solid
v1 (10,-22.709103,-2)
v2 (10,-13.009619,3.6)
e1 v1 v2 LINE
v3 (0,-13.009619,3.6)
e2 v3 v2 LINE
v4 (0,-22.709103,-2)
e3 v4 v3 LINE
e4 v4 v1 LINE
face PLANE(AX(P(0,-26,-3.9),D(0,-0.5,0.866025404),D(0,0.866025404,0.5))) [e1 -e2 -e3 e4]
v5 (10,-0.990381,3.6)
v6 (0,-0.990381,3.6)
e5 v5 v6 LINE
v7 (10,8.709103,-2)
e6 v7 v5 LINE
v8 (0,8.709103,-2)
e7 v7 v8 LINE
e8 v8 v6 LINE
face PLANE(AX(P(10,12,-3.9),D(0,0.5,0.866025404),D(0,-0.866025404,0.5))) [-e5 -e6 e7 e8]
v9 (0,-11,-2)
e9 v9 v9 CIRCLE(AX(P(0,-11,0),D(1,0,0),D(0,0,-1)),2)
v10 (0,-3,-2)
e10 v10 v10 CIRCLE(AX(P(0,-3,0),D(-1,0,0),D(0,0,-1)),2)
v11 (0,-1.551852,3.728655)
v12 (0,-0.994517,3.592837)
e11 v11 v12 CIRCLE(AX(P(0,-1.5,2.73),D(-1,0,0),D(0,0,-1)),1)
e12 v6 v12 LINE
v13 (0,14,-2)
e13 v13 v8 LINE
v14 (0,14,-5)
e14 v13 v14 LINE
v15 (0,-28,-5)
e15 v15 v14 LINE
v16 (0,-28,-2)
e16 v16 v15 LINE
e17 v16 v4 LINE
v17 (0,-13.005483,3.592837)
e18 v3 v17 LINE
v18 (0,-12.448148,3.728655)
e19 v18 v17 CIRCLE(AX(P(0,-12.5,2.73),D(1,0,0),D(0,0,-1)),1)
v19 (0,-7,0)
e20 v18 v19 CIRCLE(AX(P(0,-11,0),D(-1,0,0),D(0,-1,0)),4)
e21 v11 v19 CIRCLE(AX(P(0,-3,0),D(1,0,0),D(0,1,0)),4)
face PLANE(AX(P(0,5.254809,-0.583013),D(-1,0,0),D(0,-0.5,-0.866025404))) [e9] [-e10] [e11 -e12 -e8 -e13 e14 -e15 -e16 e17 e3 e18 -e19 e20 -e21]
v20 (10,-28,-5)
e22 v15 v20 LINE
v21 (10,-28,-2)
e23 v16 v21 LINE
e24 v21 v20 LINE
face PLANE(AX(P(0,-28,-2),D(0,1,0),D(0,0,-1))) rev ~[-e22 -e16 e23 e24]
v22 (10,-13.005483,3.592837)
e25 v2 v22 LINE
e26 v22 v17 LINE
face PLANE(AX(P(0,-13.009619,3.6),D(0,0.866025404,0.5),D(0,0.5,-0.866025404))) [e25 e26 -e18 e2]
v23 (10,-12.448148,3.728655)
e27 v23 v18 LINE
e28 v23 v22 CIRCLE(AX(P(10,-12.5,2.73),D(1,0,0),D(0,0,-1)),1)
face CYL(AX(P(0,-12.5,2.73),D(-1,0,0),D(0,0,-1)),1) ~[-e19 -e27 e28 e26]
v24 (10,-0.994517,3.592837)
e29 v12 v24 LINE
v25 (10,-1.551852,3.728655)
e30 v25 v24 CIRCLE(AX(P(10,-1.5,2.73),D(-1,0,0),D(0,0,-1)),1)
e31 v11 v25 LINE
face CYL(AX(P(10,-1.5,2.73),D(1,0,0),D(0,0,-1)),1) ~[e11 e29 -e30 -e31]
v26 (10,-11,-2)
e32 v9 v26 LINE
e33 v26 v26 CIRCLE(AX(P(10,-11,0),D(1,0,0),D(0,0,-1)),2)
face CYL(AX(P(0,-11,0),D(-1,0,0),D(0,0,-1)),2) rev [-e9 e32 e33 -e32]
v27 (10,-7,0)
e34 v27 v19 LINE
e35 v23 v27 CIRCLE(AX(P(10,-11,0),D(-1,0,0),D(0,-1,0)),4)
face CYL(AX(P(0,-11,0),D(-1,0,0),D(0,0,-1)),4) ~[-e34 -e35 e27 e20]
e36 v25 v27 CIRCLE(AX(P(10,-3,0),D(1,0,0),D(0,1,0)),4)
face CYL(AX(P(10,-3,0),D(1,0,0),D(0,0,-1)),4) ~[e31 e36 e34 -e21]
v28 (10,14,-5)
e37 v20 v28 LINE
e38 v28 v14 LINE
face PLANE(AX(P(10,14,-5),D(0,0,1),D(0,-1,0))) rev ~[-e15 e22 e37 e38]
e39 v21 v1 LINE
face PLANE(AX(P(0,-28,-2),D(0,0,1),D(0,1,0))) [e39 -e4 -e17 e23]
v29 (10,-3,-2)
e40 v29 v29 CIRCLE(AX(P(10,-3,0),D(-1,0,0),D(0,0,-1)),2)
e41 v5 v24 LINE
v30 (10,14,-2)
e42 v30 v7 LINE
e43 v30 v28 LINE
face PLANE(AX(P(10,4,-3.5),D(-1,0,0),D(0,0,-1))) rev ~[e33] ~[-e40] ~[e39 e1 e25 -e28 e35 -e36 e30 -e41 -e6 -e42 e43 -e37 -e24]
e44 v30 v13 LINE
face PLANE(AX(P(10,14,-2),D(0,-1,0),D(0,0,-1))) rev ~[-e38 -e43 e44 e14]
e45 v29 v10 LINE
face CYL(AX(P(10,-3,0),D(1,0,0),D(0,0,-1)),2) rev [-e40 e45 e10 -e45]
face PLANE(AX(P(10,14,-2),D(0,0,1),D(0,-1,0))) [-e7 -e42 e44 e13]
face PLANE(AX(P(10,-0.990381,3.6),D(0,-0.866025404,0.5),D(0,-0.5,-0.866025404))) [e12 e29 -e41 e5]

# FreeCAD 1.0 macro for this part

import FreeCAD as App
import Part
import Sketcher
Q = App.Units.Quantity

doc = App.newDocument("Part")
params = doc.addObject("Spreadsheet::Sheet", "Params")
for row, (alias, value) in enumerate([
    ("sketch1_diameter", "4 mm"),
    ("pad1_length", "10 mm"),
    ("sketch2_diameter", "4 mm"),
    ("pad2_length", "10 mm"),
    ("sketch3_diameter", "2 mm"),
    ("pad3_length", "10 mm"),
    ("sketch4_width", "3 mm"),
    ("sketch4_height", "20 mm"),
    ("pad4_length", "10 mm"),
    ("sketch5_width", "1 mm"),
    ("sketch5_height", "15 mm"),
    ("pad5_length", "10 mm"),
    ("sketch6_height", "8 mm"),
    ("sketch6_width", "3.3 mm"),
    ("pad6_length", "10 mm"),
    ("sketch7_diameter", "4 mm"),
    ("pad7_length", "10 mm"),
    ("sketch8_diameter", "8 mm"),
    ("pad8_length", "10 mm"),
    ("sketch9_diameter", "4 mm"),
    ("pad9_length", "10 mm"),
    ("sketch10_diameter", "2 mm"),
    ("pad10_length", "10 mm"),
    ("sketch11_width", "3 mm"),
    ("sketch11_height", "22 mm"),
    ("pad11_length", "10 mm"),
    ("sketch12_width", "1 mm"),
    ("sketch12_height", "15 mm"),
    ("pad12_length", "10 mm"),
    ("sketch13_height", "8 mm"),
    ("sketch13_width", "3.3 mm"),
    ("pad13_length", "10 mm"),
    ("sketch14_diameter", "4 mm"),
    ("pad14_length", "10 mm"),
    ("sketch15_diameter", "8 mm"),
    ("pad15_length", "10 mm"),
], start=1):
    params.set(f"A{row}", alias)
    params.set(f"B{row}", "=" + value)
    params.setAlias(f"B{row}", alias)

body = doc.addObject("PartDesign::Body", "Body")

sketch1 = doc.addObject("Sketcher::SketchObject", "Sketch")
body.addObject(sketch1)
sketch1.AttachmentSupport = (doc.XY_Plane, [""])
sketch1.MapMode = "FlatFace"
sketch1.addGeometry(Part.Circle(App.Vector(2, -7, 0), App.Vector(0, 0, 1), 2), False)
sketch1.addConstraint(Sketcher.Constraint("Diameter", 0, Q("4 mm")))
sketch1.addConstraint(Sketcher.Constraint("DistanceX", -1, 1, 0, 3, Q("2 mm")))
sketch1.addConstraint(Sketcher.Constraint("DistanceY", 0, 3, -1, 1, Q("7 mm")))
sketch1.setExpression("Constraints[0]", "Params.sketch1_diameter")
pad1 = doc.addObject("PartDesign::Pad", "Pad")
body.addObject(pad1)
pad1.Profile = sketch1
pad1.setExpression("Length", "Params.pad1_length")
body2 = doc.addObject("PartDesign::Body", "Body001")

sketch2 = doc.addObject("Sketcher::SketchObject", "Sketch001")
body2.addObject(sketch2)
sketch2.AttachmentSupport = (doc.getObject("XY_Plane001"), [""])
sketch2.MapMode = "FlatFace"
sketch2.addGeometry(Part.Circle(App.Vector(2, -15, 0), App.Vector(0, 0, 1), 2), False)
sketch2.addConstraint(Sketcher.Constraint("Diameter", 0, Q("4 mm")))
sketch2.addConstraint(Sketcher.Constraint("DistanceX", -1, 1, 0, 3, Q("2 mm")))
sketch2.addConstraint(Sketcher.Constraint("DistanceY", 0, 3, -1, 1, Q("15 mm")))
sketch2.setExpression("Constraints[0]", "Params.sketch2_diameter")
pad2 = doc.addObject("PartDesign::Pad", "Pad001")
body2.addObject(pad2)
pad2.Profile = sketch2
pad2.setExpression("Length", "Params.pad2_length")
body3 = doc.addObject("PartDesign::Body", "Body002")

sketch3 = doc.addObject("Sketcher::SketchObject", "Sketch002")
body3.addObject(sketch3)
sketch3.AttachmentSupport = (doc.getObject("XY_Plane002"), [""])
sketch3.MapMode = "FlatFace"
sketch3.addGeometry(Part.Circle(App.Vector(-2.7, -12.5, 0), App.Vector(0, 0, 1), 1), False)
sketch3.addConstraint(Sketcher.Constraint("Diameter", 0, Q("2 mm")))
sketch3.addConstraint(Sketcher.Constraint("DistanceY", 0, 3, -1, 1, Q("12.5 mm")))
sketch3.addConstraint(Sketcher.Constraint("DistanceX", 0, 3, -1, 1, Q("2.73 mm")))
sketch3.setExpression("Constraints[0]", "Params.sketch3_diameter")
pad3 = doc.addObject("PartDesign::Pad", "Pad002")
body3.addObject(pad3)
pad3.Profile = sketch3
pad3.setExpression("Length", "Params.pad3_length")
body4 = doc.addObject("PartDesign::Body", "Body003")

sketch4 = doc.addObject("Sketcher::SketchObject", "Sketch003")
body4.addObject(sketch4)
sketch4.AttachmentSupport = (doc.getObject("XY_Plane003"), [""])
sketch4.MapMode = "FlatFace"
sketch4.addGeometry(Part.LineSegment(App.Vector(2, -8, 0), App.Vector(2, -28, 0)), False)
sketch4.addGeometry(Part.LineSegment(App.Vector(2, -28, 0), App.Vector(5, -28, 0)), False)
sketch4.addGeometry(Part.LineSegment(App.Vector(5, -28, 0), App.Vector(5, -8, 0)), False)
sketch4.addGeometry(Part.LineSegment(App.Vector(5, -8, 0), App.Vector(2, -8, 0)), False)
sketch4.addConstraint(Sketcher.Constraint("Coincident", 0, 2, 1, 1))
sketch4.addConstraint(Sketcher.Constraint("Coincident", 1, 2, 2, 1))
sketch4.addConstraint(Sketcher.Constraint("Coincident", 2, 2, 3, 1))
sketch4.addConstraint(Sketcher.Constraint("Coincident", 3, 2, 0, 1))
sketch4.addConstraint(Sketcher.Constraint("Vertical", 0))
sketch4.addConstraint(Sketcher.Constraint("Horizontal", 1))
sketch4.addConstraint(Sketcher.Constraint("Vertical", 2))
sketch4.addConstraint(Sketcher.Constraint("Horizontal", 3))
sketch4.addConstraint(Sketcher.Constraint("DistanceX", 1, 1, 1, 2, Q("3 mm")))
sketch4.addConstraint(Sketcher.Constraint("DistanceY", 0, 2, 0, 1, Q("20 mm")))
sketch4.addConstraint(Sketcher.Constraint("DistanceX", -1, 1, 0, 2, Q("2 mm")))
sketch4.addConstraint(Sketcher.Constraint("DistanceY", 0, 2, -1, 1, Q("28 mm")))
sketch4.setExpression("Constraints[8]", "Params.sketch4_width")
sketch4.setExpression("Constraints[9]", "Params.sketch4_height")
pad4 = doc.addObject("PartDesign::Pad", "Pad003")
body4.addObject(pad4)
pad4.Profile = sketch4
pad4.setExpression("Length", "Params.pad4_length")
body5 = doc.addObject("PartDesign::Body", "Body004")

sketch5 = doc.addObject("Sketcher::SketchObject", "Sketch004")
body5.addObject(sketch5)
sketch5.AttachmentSupport = (doc.getObject("XY_Plane004"), [""])
sketch5.MapMode = "FlatFace"
sketch5.addGeometry(Part.LineSegment(App.Vector(0, 15, 0), App.Vector(0, 0, 0)), False)
sketch5.addGeometry(Part.LineSegment(App.Vector(0, 0, 0), App.Vector(1, 0, 0)), False)
sketch5.addGeometry(Part.LineSegment(App.Vector(1, 0, 0), App.Vector(1, 15, 0)), False)
sketch5.addGeometry(Part.LineSegment(App.Vector(1, 15, 0), App.Vector(0, 15, 0)), False)
sketch5.addConstraint(Sketcher.Constraint("Coincident", 0, 2, 1, 1))
sketch5.addConstraint(Sketcher.Constraint("Coincident", 1, 2, 2, 1))
sketch5.addConstraint(Sketcher.Constraint("Coincident", 2, 2, 3, 1))
sketch5.addConstraint(Sketcher.Constraint("Coincident", 3, 2, 0, 1))
sketch5.addConstraint(Sketcher.Constraint("Vertical", 0))
sketch5.addConstraint(Sketcher.Constraint("Horizontal", 1))
sketch5.addConstraint(Sketcher.Constraint("Vertical", 2))
sketch5.addConstraint(Sketcher.Constraint("Horizontal", 3))
sketch5.addConstraint(Sketcher.Constraint("Coincident", 0, 2, -1, 1))
sketch5.addConstraint(Sketcher.Constraint("DistanceX", 1, 1, 1, 2, Q("1 mm")))
sketch5.addConstraint(Sketcher.Constraint("DistanceY", 0, 2, 0, 1, Q("15 mm")))
sketch5.setExpression("Constraints[9]", "Params.sketch5_width")
sketch5.setExpression("Constraints[10]", "Params.sketch5_height")
pad5 = doc.addObject("PartDesign::Pad", "Pad004")
body5.addObject(pad5)
pad5.Profile = sketch5
pad5.setExpression("Length", "Params.pad5_length")
body6 = doc.addObject("PartDesign::Body", "Body005")
doc.recompute()

body5.Placement = App.Placement(App.Vector(3.9, -26, 0), App.Rotation(App.Vector(0, 0, 1), 30))
boolean = doc.addObject("PartDesign::Boolean", "Boolean")
body6.addObject(boolean)
boolean.Type = "Fuse"
boolean.addObjects([body5])
body7 = doc.addObject("PartDesign::Body", "Body006")

sketch6 = doc.addObject("Sketcher::SketchObject", "Sketch005")
body7.addObject(sketch6)
sketch6.AttachmentSupport = (doc.getObject("XY_Plane006"), [""])
sketch6.MapMode = "FlatFace"
sketch6.addGeometry(Part.LineSegment(App.Vector(0, 8, 0), App.Vector(0, 0, 0)), False)
sketch6.addGeometry(Part.LineSegment(App.Vector(0, 0, 0), App.Vector(3.3, 0, 0)), False)
sketch6.addGeometry(Part.LineSegment(App.Vector(3.3, 0, 0), App.Vector(3.3, 8, 0)), False)
sketch6.addGeometry(Part.LineSegment(App.Vector(3.3, 8, 0), App.Vector(0, 8, 0)), False)
sketch6.addConstraint(Sketcher.Constraint("Coincident", 0, 2, 1, 1))
sketch6.addConstraint(Sketcher.Constraint("Coincident", 1, 2, 2, 1))
sketch6.addConstraint(Sketcher.Constraint("Coincident", 2, 2, 3, 1))
sketch6.addConstraint(Sketcher.Constraint("Coincident", 3, 2, 0, 1))
sketch6.addConstraint(Sketcher.Constraint("Vertical", 0))
sketch6.addConstraint(Sketcher.Constraint("Horizontal", 1))
sketch6.addConstraint(Sketcher.Constraint("Vertical", 2))
sketch6.addConstraint(Sketcher.Constraint("Horizontal", 3))
sketch6.addConstraint(Sketcher.Constraint("Coincident", 0, 2, -1, 1))
sketch6.addConstraint(Sketcher.Constraint("DistanceY", 0, 2, 0, 1, Q("8 mm")))
sketch6.addConstraint(Sketcher.Constraint("DistanceX", 1, 1, 1, 2, Q("3.3 mm")))
sketch6.setExpression("Constraints[9]", "Params.sketch6_height")
sketch6.setExpression("Constraints[10]", "Params.sketch6_width")
pad6 = doc.addObject("PartDesign::Pad", "Pad005")
body7.addObject(pad6)
pad6.Profile = sketch6
pad6.setExpression("Length", "Params.pad6_length")
body8 = doc.addObject("PartDesign::Body", "Body007")
doc.recompute()

body7.Placement = App.Placement(App.Vector(2, -21.5, 0), App.Rotation(App.Vector(0, 0, 1), 30))
boolean2 = doc.addObject("PartDesign::Boolean", "Boolean001")
body8.addObject(boolean2)
boolean2.Type = "Fuse"
boolean2.addObjects([body7])
body9 = doc.addObject("PartDesign::Body", "Body008")

sketch7 = doc.addObject("Sketcher::SketchObject", "Sketch006")
body9.addObject(sketch7)
sketch7.AttachmentSupport = (doc.getObject("XY_Plane008"), [""])
sketch7.MapMode = "FlatFace"
sketch7.addGeometry(Part.Circle(App.Vector(0, 0, 0), App.Vector(0, 0, 1), 2), False)
sketch7.addConstraint(Sketcher.Constraint("Coincident", 0, 3, -1, 1))
sketch7.addConstraint(Sketcher.Constraint("Diameter", 0, Q("4 mm")))
sketch7.setExpression("Constraints[1]", "Params.sketch7_diameter")
pad7 = doc.addObject("PartDesign::Pad", "Pad006")
body9.addObject(pad7)
pad7.Profile = sketch7
pad7.setExpression("Length", "Params.pad7_length")
body10 = doc.addObject("PartDesign::Body", "Body009")

sketch8 = doc.addObject("Sketcher::SketchObject", "Sketch007")
body10.addObject(sketch8)
sketch8.AttachmentSupport = (doc.getObject("XY_Plane009"), [""])
sketch8.MapMode = "FlatFace"
sketch8.addGeometry(Part.Circle(App.Vector(0, 0, 0), App.Vector(0, 0, 1), 4), False)
sketch8.addConstraint(Sketcher.Constraint("Coincident", 0, 3, -1, 1))
sketch8.addConstraint(Sketcher.Constraint("Diameter", 0, Q("8 mm")))
sketch8.setExpression("Constraints[1]", "Params.sketch8_diameter")
pad8 = doc.addObject("PartDesign::Pad", "Pad007")
body10.addObject(pad8)
pad8.Profile = sketch8
pad8.setExpression("Length", "Params.pad8_length")
doc.recompute()

boolean3 = doc.addObject("PartDesign::Boolean", "Boolean002")
body10.addObject(boolean3)
boolean3.Type = "Cut"
boolean3.addObjects([body9])
body11 = doc.addObject("PartDesign::Body", "Body010")
doc.recompute()

body10.Placement = App.Placement(App.Vector(0, -11, 0), App.Rotation(App.Vector(0, 0, 1), 0))
boolean4 = doc.addObject("PartDesign::Boolean", "Boolean003")
body11.addObject(boolean4)
boolean4.Type = "Fuse"
boolean4.addObjects([body10])
doc.recompute()

boolean5 = doc.addObject("PartDesign::Boolean", "Boolean004")
body11.addObject(boolean5)
boolean5.Type = "Fuse"
boolean5.addObjects([body2])
doc.recompute()

boolean6 = doc.addObject("PartDesign::Boolean", "Boolean005")
body11.addObject(boolean6)
boolean6.Type = "Fuse"
boolean6.addObjects([body3])
doc.recompute()

boolean7 = doc.addObject("PartDesign::Boolean", "Boolean006")
body11.addObject(boolean7)
boolean7.Type = "Fuse"
boolean7.addObjects([body4])
doc.recompute()

boolean8 = doc.addObject("PartDesign::Boolean", "Boolean007")
body11.addObject(boolean8)
boolean8.Type = "Fuse"
boolean8.addObjects([body6])
doc.recompute()

boolean9 = doc.addObject("PartDesign::Boolean", "Boolean008")
body11.addObject(boolean9)
boolean9.Type = "Fuse"
boolean9.addObjects([body8])
body12 = doc.addObject("PartDesign::Body", "Body011")
doc.recompute()

body11.Placement = App.Placement(App.Vector(0, -14, 10), App.Rotation(App.Vector(1, 0, 0), 180))
boolean10 = doc.addObject("PartDesign::Boolean", "Boolean009")
body12.addObject(boolean10)
boolean10.Type = "Fuse"
boolean10.addObjects([body11])
body13 = doc.addObject("PartDesign::Body", "Body012")

sketch9 = doc.addObject("Sketcher::SketchObject", "Sketch008")
body13.addObject(sketch9)
sketch9.AttachmentSupport = (doc.getObject("XY_Plane012"), [""])
sketch9.MapMode = "FlatFace"
sketch9.addGeometry(Part.Circle(App.Vector(2, -15, 0), App.Vector(0, 0, 1), 2), False)
sketch9.addConstraint(Sketcher.Constraint("Diameter", 0, Q("4 mm")))
sketch9.addConstraint(Sketcher.Constraint("DistanceX", -1, 1, 0, 3, Q("2 mm")))
sketch9.addConstraint(Sketcher.Constraint("DistanceY", 0, 3, -1, 1, Q("15 mm")))
sketch9.setExpression("Constraints[0]", "Params.sketch9_diameter")
pad9 = doc.addObject("PartDesign::Pad", "Pad008")
body13.addObject(pad9)
pad9.Profile = sketch9
pad9.setExpression("Length", "Params.pad9_length")
body14 = doc.addObject("PartDesign::Body", "Body013")

sketch10 = doc.addObject("Sketcher::SketchObject", "Sketch009")
body14.addObject(sketch10)
sketch10.AttachmentSupport = (doc.getObject("XY_Plane013"), [""])
sketch10.MapMode = "FlatFace"
sketch10.addGeometry(Part.Circle(App.Vector(-2.7, -12.5, 0), App.Vector(0, 0, 1), 1), False)
sketch10.addConstraint(Sketcher.Constraint("Diameter", 0, Q("2 mm")))
sketch10.addConstraint(Sketcher.Constraint("DistanceY", 0, 3, -1, 1, Q("12.5 mm")))
sketch10.addConstraint(Sketcher.Constraint("DistanceX", 0, 3, -1, 1, Q("2.73 mm")))
sketch10.setExpression("Constraints[0]", "Params.sketch10_diameter")
pad10 = doc.addObject("PartDesign::Pad", "Pad009")
body14.addObject(pad10)
pad10.Profile = sketch10
pad10.setExpression("Length", "Params.pad10_length")
body15 = doc.addObject("PartDesign::Body", "Body014")

sketch11 = doc.addObject("Sketcher::SketchObject", "Sketch010")
body15.addObject(sketch11)
sketch11.AttachmentSupport = (doc.getObject("XY_Plane014"), [""])
sketch11.MapMode = "FlatFace"
sketch11.addGeometry(Part.LineSegment(App.Vector(2, -6, 0), App.Vector(2, -28, 0)), False)
sketch11.addGeometry(Part.LineSegment(App.Vector(2, -28, 0), App.Vector(5, -28, 0)), False)
sketch11.addGeometry(Part.LineSegment(App.Vector(5, -28, 0), App.Vector(5, -6, 0)), False)
sketch11.addGeometry(Part.LineSegment(App.Vector(5, -6, 0), App.Vector(2, -6, 0)), False)
sketch11.addConstraint(Sketcher.Constraint("Coincident", 0, 2, 1, 1))
sketch11.addConstraint(Sketcher.Constraint("Coincident", 1, 2, 2, 1))
sketch11.addConstraint(Sketcher.Constraint("Coincident", 2, 2, 3, 1))
sketch11.addConstraint(Sketcher.Constraint("Coincident", 3, 2, 0, 1))
sketch11.addConstraint(Sketcher.Constraint("Vertical", 0))
sketch11.addConstraint(Sketcher.Constraint("Horizontal", 1))
sketch11.addConstraint(Sketcher.Constraint("Vertical", 2))
sketch11.addConstraint(Sketcher.Constraint("Horizontal", 3))
sketch11.addConstraint(Sketcher.Constraint("DistanceX", 1, 1, 1, 2, Q("3 mm")))
sketch11.addConstraint(Sketcher.Constraint("DistanceY", 0, 2, 0, 1, Q("22 mm")))
sketch11.addConstraint(Sketcher.Constraint("DistanceX", -1, 1, 0, 2, Q("2 mm")))
sketch11.addConstraint(Sketcher.Constraint("DistanceY", 0, 2, -1, 1, Q("28 mm")))
sketch11.setExpression("Constraints[8]", "Params.sketch11_width")
sketch11.setExpression("Constraints[9]", "Params.sketch11_height")
pad11 = doc.addObject("PartDesign::Pad", "Pad010")
body15.addObject(pad11)
pad11.Profile = sketch11
pad11.setExpression("Length", "Params.pad11_length")
body16 = doc.addObject("PartDesign::Body", "Body015")

sketch12 = doc.addObject("Sketcher::SketchObject", "Sketch011")
body16.addObject(sketch12)
sketch12.AttachmentSupport = (doc.getObject("XY_Plane015"), [""])
sketch12.MapMode = "FlatFace"
sketch12.addGeometry(Part.LineSegment(App.Vector(0, 15, 0), App.Vector(0, 0, 0)), False)
sketch12.addGeometry(Part.LineSegment(App.Vector(0, 0, 0), App.Vector(1, 0, 0)), False)
sketch12.addGeometry(Part.LineSegment(App.Vector(1, 0, 0), App.Vector(1, 15, 0)), False)
sketch12.addGeometry(Part.LineSegment(App.Vector(1, 15, 0), App.Vector(0, 15, 0)), False)
sketch12.addConstraint(Sketcher.Constraint("Coincident", 0, 2, 1, 1))
sketch12.addConstraint(Sketcher.Constraint("Coincident", 1, 2, 2, 1))
sketch12.addConstraint(Sketcher.Constraint("Coincident", 2, 2, 3, 1))
sketch12.addConstraint(Sketcher.Constraint("Coincident", 3, 2, 0, 1))
sketch12.addConstraint(Sketcher.Constraint("Vertical", 0))
sketch12.addConstraint(Sketcher.Constraint("Horizontal", 1))
sketch12.addConstraint(Sketcher.Constraint("Vertical", 2))
sketch12.addConstraint(Sketcher.Constraint("Horizontal", 3))
sketch12.addConstraint(Sketcher.Constraint("Coincident", 0, 2, -1, 1))
sketch12.addConstraint(Sketcher.Constraint("DistanceX", 1, 1, 1, 2, Q("1 mm")))
sketch12.addConstraint(Sketcher.Constraint("DistanceY", 0, 2, 0, 1, Q("15 mm")))
sketch12.setExpression("Constraints[9]", "Params.sketch12_width")
sketch12.setExpression("Constraints[10]", "Params.sketch12_height")
pad12 = doc.addObject("PartDesign::Pad", "Pad011")
body16.addObject(pad12)
pad12.Profile = sketch12
pad12.setExpression("Length", "Params.pad12_length")
body17 = doc.addObject("PartDesign::Body", "Body016")
doc.recompute()

body16.Placement = App.Placement(App.Vector(3.9, -26, 0), App.Rotation(App.Vector(0, 0, 1), 30))
boolean11 = doc.addObject("PartDesign::Boolean", "Boolean010")
body17.addObject(boolean11)
boolean11.Type = "Fuse"
boolean11.addObjects([body16])
body18 = doc.addObject("PartDesign::Body", "Body017")

sketch13 = doc.addObject("Sketcher::SketchObject", "Sketch012")
body18.addObject(sketch13)
sketch13.AttachmentSupport = (doc.getObject("XY_Plane017"), [""])
sketch13.MapMode = "FlatFace"
sketch13.addGeometry(Part.LineSegment(App.Vector(0, 8, 0), App.Vector(0, 0, 0)), False)
sketch13.addGeometry(Part.LineSegment(App.Vector(0, 0, 0), App.Vector(3.3, 0, 0)), False)
sketch13.addGeometry(Part.LineSegment(App.Vector(3.3, 0, 0), App.Vector(3.3, 8, 0)), False)
sketch13.addGeometry(Part.LineSegment(App.Vector(3.3, 8, 0), App.Vector(0, 8, 0)), False)
sketch13.addConstraint(Sketcher.Constraint("Coincident", 0, 2, 1, 1))
sketch13.addConstraint(Sketcher.Constraint("Coincident", 1, 2, 2, 1))
sketch13.addConstraint(Sketcher.Constraint("Coincident", 2, 2, 3, 1))
sketch13.addConstraint(Sketcher.Constraint("Coincident", 3, 2, 0, 1))
sketch13.addConstraint(Sketcher.Constraint("Vertical", 0))
sketch13.addConstraint(Sketcher.Constraint("Horizontal", 1))
sketch13.addConstraint(Sketcher.Constraint("Vertical", 2))
sketch13.addConstraint(Sketcher.Constraint("Horizontal", 3))
sketch13.addConstraint(Sketcher.Constraint("Coincident", 0, 2, -1, 1))
sketch13.addConstraint(Sketcher.Constraint("DistanceY", 0, 2, 0, 1, Q("8 mm")))
sketch13.addConstraint(Sketcher.Constraint("DistanceX", 1, 1, 1, 2, Q("3.3 mm")))
sketch13.setExpression("Constraints[9]", "Params.sketch13_height")
sketch13.setExpression("Constraints[10]", "Params.sketch13_width")
pad13 = doc.addObject("PartDesign::Pad", "Pad012")
body18.addObject(pad13)
pad13.Profile = sketch13
pad13.setExpression("Length", "Params.pad13_length")
body19 = doc.addObject("PartDesign::Body", "Body018")
doc.recompute()

body18.Placement = App.Placement(App.Vector(2, -21.5, 0), App.Rotation(App.Vector(0, 0, 1), 30))
boolean12 = doc.addObject("PartDesign::Boolean", "Boolean011")
body19.addObject(boolean12)
boolean12.Type = "Fuse"
boolean12.addObjects([body18])
body20 = doc.addObject("PartDesign::Body", "Body019")

sketch14 = doc.addObject("Sketcher::SketchObject", "Sketch013")
body20.addObject(sketch14)
sketch14.AttachmentSupport = (doc.getObject("XY_Plane019"), [""])
sketch14.MapMode = "FlatFace"
sketch14.addGeometry(Part.Circle(App.Vector(0, 0, 0), App.Vector(0, 0, 1), 2), False)
sketch14.addConstraint(Sketcher.Constraint("Coincident", 0, 3, -1, 1))
sketch14.addConstraint(Sketcher.Constraint("Diameter", 0, Q("4 mm")))
sketch14.setExpression("Constraints[1]", "Params.sketch14_diameter")
pad14 = doc.addObject("PartDesign::Pad", "Pad013")
body20.addObject(pad14)
pad14.Profile = sketch14
pad14.setExpression("Length", "Params.pad14_length")
body21 = doc.addObject("PartDesign::Body", "Body020")

sketch15 = doc.addObject("Sketcher::SketchObject", "Sketch014")
body21.addObject(sketch15)
sketch15.AttachmentSupport = (doc.getObject("XY_Plane020"), [""])
sketch15.MapMode = "FlatFace"
sketch15.addGeometry(Part.Circle(App.Vector(0, 0, 0), App.Vector(0, 0, 1), 4), False)
sketch15.addConstraint(Sketcher.Constraint("Coincident", 0, 3, -1, 1))
sketch15.addConstraint(Sketcher.Constraint("Diameter", 0, Q("8 mm")))
sketch15.setExpression("Constraints[1]", "Params.sketch15_diameter")
pad15 = doc.addObject("PartDesign::Pad", "Pad014")
body21.addObject(pad15)
pad15.Profile = sketch15
pad15.setExpression("Length", "Params.pad15_length")
doc.recompute()

boolean13 = doc.addObject("PartDesign::Boolean", "Boolean012")
body21.addObject(boolean13)
boolean13.Type = "Cut"
boolean13.addObjects([body20])
body22 = doc.addObject("PartDesign::Body", "Body021")
doc.recompute()

body21.Placement = App.Placement(App.Vector(0, -11, 0), App.Rotation(App.Vector(0, 0, 1), 0))
boolean14 = doc.addObject("PartDesign::Boolean", "Boolean013")
body22.addObject(boolean14)
boolean14.Type = "Fuse"
boolean14.addObjects([body21])
doc.recompute()

boolean15 = doc.addObject("PartDesign::Boolean", "Boolean014")
body22.addObject(boolean15)
boolean15.Type = "Fuse"
boolean15.addObjects([body13])
doc.recompute()

boolean16 = doc.addObject("PartDesign::Boolean", "Boolean015")
body22.addObject(boolean16)
boolean16.Type = "Fuse"
boolean16.addObjects([body14])
doc.recompute()

boolean17 = doc.addObject("PartDesign::Boolean", "Boolean016")
body22.addObject(boolean17)
boolean17.Type = "Fuse"
boolean17.addObjects([body15])
doc.recompute()

boolean18 = doc.addObject("PartDesign::Boolean", "Boolean017")
body22.addObject(boolean18)
boolean18.Type = "Fuse"
boolean18.addObjects([body17])
doc.recompute()

boolean19 = doc.addObject("PartDesign::Boolean", "Boolean018")
body22.addObject(boolean19)
boolean19.Type = "Fuse"
boolean19.addObjects([body19])
doc.recompute()

boolean20 = doc.addObject("PartDesign::Boolean", "Boolean019")
body22.addObject(boolean20)
boolean20.Type = "Fuse"
boolean20.addObjects([body12])
doc.recompute()

boolean21 = doc.addObject("PartDesign::Boolean", "Boolean020")
body22.addObject(boolean21)
boolean21.Type = "Fuse"
boolean21.addObjects([body])
body23 = doc.addObject("PartDesign::Body", "Body022")
doc.recompute()

body22.Placement = App.Placement(App.Vector(0, 0, 0), App.Rotation(App.Vector(0, 1, 0), 90))
boolean22 = doc.addObject("PartDesign::Boolean", "Boolean021")
body23.addObject(boolean22)
boolean22.Type = "Fuse"
boolean22.addObjects([body22])

doc.recompute()
